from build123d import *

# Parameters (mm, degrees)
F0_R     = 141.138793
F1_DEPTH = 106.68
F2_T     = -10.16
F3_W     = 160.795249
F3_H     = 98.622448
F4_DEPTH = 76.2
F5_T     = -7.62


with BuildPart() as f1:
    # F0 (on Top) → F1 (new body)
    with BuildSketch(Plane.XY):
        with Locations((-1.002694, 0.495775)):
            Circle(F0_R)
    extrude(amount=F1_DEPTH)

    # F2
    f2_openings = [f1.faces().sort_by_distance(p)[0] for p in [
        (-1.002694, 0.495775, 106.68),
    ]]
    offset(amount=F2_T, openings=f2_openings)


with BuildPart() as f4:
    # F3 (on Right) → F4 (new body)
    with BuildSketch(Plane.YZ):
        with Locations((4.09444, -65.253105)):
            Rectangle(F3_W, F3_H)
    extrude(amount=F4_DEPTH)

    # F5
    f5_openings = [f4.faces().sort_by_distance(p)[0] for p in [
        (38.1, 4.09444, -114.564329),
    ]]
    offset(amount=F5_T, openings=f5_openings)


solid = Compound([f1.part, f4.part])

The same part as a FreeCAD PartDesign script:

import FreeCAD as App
import Part
import Sketcher

V = App.Vector
Q = App.Units.Quantity


def faces_at(feature, points):
    """Names of the faces that lie closest to the given points."""
    faces = feature.Shape.Faces
    near = lambda p: min(range(len(faces)), key=lambda i: faces[i].distToShape(Part.Vertex(*p))[0])
    return sorted({f"Face{near(p) + 1}" for p in points})


def add_polygon(sketch, points):
    """Adds a closed chain of lines whose ends are joined by coincident constraints."""
    first, n = sketch.GeometryCount, len(points)
    for a, b in zip(points, points[1:] + points[:1]):
        sketch.addGeometry(Part.LineSegment(App.Vector(*a, 0), App.Vector(*b, 0)), False)
    for i in range(n):
        sketch.addConstraint(Sketcher.Constraint("Coincident", first + i, 2, first + (i + 1) % n, 1))

doc = App.newDocument("Part")
body = doc.addObject("PartDesign::Body", "Body")

# Sketch on XY plane
sketch1 = body.newObject("Sketcher::SketchObject", "Sketch")
sketch1.AttachmentSupport = (doc.getObject("XY_Plane"), [""])
sketch1.MapMode = "FlatFace"
sketch1.addGeometry(Part.Circle(V(-1, 0, 0), V(0, 0, 1), 141), False)
sketch1.addConstraint(Sketcher.Constraint("Diameter", 0, 282.277586))
sketch1.addConstraint(Sketcher.Constraint("DistanceX", 0, 3, -1, 1, 1.002694))
sketch1.addConstraint(Sketcher.Constraint("DistanceY", -1, 1, 0, 3, 0.495775))
pad1 = body.newObject("PartDesign::Pad", "Pad")
pad1.Profile = sketch1
pad1.Length = Q("4.2 in")
doc.recompute()

thickness = body.newObject("PartDesign::Thickness", "Thickness")
thickness.Base = (pad1, faces_at(pad1, [(-1.003, 0.496, 106.68)]))
thickness.Value = Q("0.4 in")
thickness.Reversed = True
thickness.Join = "Arc"
body2 = doc.addObject("PartDesign::Body", "Body001")

# Sketch on YZ plane
sketch2 = body2.newObject("Sketcher::SketchObject", "Sketch001")
sketch2.AttachmentSupport = (doc.getObject("YZ_Plane001"), [""])
sketch2.MapMode = "FlatFace"
add_polygon(sketch2, [(-76, -16), (-76, -115), (84, -115), (84, -16)])  # lines 0-3
sketch2.addConstraint(Sketcher.Constraint("Vertical", 0))
sketch2.addConstraint(Sketcher.Constraint("Horizontal", 1))
sketch2.addConstraint(Sketcher.Constraint("Vertical", 2))
sketch2.addConstraint(Sketcher.Constraint("Horizontal", 3))
sketch2.addConstraint(Sketcher.Constraint("DistanceX", 1, 1, 1, 2, 160.795249))
sketch2.addConstraint(Sketcher.Constraint("DistanceY", 0, 2, 0, 1, 98.622448))
sketch2.addConstraint(Sketcher.Constraint("DistanceY", 0, 2, -1, 1, 114.564329))
sketch2.addConstraint(Sketcher.Constraint("DistanceX", 0, 2, -1, 1, 76.303185))
pad2 = body2.newObject("PartDesign::Pad", "Pad001")
pad2.Profile = sketch2
pad2.Length = Q("3 in")
doc.recompute()

thickness2 = body2.newObject("PartDesign::Thickness", "Thickness001")
thickness2.Base = (pad2, faces_at(pad2, [(38.1, 4.094, -114.564)]))
thickness2.Value = Q("0.3 in")
thickness2.Reversed = True
thickness2.Join = "Arc"

doc.recompute()
